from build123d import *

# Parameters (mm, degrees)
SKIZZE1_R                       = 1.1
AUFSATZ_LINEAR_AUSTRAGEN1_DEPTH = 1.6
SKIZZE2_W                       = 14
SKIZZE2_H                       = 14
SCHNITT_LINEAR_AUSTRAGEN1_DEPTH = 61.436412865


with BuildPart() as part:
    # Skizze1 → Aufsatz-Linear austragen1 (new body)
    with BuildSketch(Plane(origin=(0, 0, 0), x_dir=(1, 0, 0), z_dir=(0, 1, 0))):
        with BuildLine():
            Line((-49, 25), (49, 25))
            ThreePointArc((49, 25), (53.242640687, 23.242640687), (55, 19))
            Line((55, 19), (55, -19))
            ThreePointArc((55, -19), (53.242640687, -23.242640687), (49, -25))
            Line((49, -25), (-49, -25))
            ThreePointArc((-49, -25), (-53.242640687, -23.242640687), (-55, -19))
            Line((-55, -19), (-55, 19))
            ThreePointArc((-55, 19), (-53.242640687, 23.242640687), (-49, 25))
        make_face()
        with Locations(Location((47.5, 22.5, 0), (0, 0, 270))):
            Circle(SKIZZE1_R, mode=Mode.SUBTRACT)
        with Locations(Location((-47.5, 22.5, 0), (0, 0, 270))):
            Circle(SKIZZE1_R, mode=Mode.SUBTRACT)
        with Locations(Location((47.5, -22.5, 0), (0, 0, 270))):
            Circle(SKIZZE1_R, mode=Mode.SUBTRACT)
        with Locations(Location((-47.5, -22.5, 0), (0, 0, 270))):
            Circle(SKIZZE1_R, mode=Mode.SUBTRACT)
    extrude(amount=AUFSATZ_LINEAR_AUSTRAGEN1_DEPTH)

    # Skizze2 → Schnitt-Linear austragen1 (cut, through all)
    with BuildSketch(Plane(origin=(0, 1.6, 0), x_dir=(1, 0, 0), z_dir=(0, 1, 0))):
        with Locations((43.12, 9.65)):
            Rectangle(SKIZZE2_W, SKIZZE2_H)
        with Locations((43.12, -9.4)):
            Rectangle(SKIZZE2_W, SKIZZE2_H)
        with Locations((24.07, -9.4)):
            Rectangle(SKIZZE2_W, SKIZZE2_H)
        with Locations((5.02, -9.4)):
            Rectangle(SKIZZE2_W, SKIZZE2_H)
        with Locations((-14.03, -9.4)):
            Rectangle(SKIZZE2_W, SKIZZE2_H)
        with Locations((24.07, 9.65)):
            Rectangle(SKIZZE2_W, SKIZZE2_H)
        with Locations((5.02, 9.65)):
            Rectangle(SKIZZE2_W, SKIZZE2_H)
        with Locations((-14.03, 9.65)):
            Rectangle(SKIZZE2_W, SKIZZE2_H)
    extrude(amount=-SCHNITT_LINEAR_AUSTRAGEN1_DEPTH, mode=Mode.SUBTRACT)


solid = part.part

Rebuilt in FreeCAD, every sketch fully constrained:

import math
import FreeCAD as App
import Part
import Sketcher


def add_polygon(sketch, points):
    """Adds a closed chain of lines whose ends are joined by coincident constraints."""
    first, n = sketch.GeometryCount, len(points)
    for a, b in zip(points, points[1:] + points[:1]):
        sketch.addGeometry(Part.LineSegment(App.Vector(*a, 0), App.Vector(*b, 0)), False)
    for i in range(n):
        sketch.addConstraint(Sketcher.Constraint("Coincident", first + i, 2, first + (i + 1) % n, 1))

doc = App.newDocument("Part")
body = doc.addObject("PartDesign::Body", "Body")

# Sketch on XZ plane
sketch1 = body.newObject("Sketcher::SketchObject", "Sketch")
sketch1.AttachmentSupport = (doc.getObject("XZ_Plane"), [""])
sketch1.MapMode = "FlatFace"
sketch1.addGeometry([
    Part.LineSegment(App.Vector(49, -25, 0), App.Vector(-49, -25, 0)),  # 0
    Part.ArcOfCircle(Part.Circle(App.Vector(-49, -19, 0), App.Vector(0, 0, 1), 6), math.radians(180), math.radians(270)),  # 1
    Part.LineSegment(App.Vector(-55, -19, 0), App.Vector(-55, 19, 0)),  # 2
    Part.ArcOfCircle(Part.Circle(App.Vector(-49, 19, 0), App.Vector(0, 0, 1), 6), math.radians(90), math.radians(180)),  # 3
    Part.LineSegment(App.Vector(-49, 25, 0), App.Vector(49, 25, 0)),  # 4
    Part.ArcOfCircle(Part.Circle(App.Vector(49, 19, 0), App.Vector(0, 0, 1), 6), math.radians(0), math.radians(90)),  # 5
    Part.LineSegment(App.Vector(55, 19, 0), App.Vector(55, -19, 0)),  # 6
    Part.ArcOfCircle(Part.Circle(App.Vector(49, -19, 0), App.Vector(0, 0, 1), 6), math.radians(-90), math.radians(0)),  # 7
    Part.Circle(App.Vector(47.5, 22.5, 0), App.Vector(0, 0, 1), 1.1),  # 8
    Part.Circle(App.Vector(-47.5, 22.5, 0), App.Vector(0, 0, 1), 1.1),  # 9
    Part.Circle(App.Vector(47.5, -22.5, 0), App.Vector(0, 0, 1), 1.1),  # 10
    Part.Circle(App.Vector(-47.5, -22.5, 0), App.Vector(0, 0, 1), 1.1),  # 11
], False)
sketch1.addConstraint([
    Sketcher.Constraint("Tangent", 0, 2, 1, 2),
    Sketcher.Constraint("Tangent", 1, 1, 2, 1),
    Sketcher.Constraint("Tangent", 2, 2, 3, 2),
    Sketcher.Constraint("Tangent", 3, 1, 4, 1),
    Sketcher.Constraint("Tangent", 4, 2, 5, 2),
    Sketcher.Constraint("Tangent", 5, 1, 6, 1),
    Sketcher.Constraint("Tangent", 6, 2, 7, 2),
    Sketcher.Constraint("Tangent", 7, 1, 0, 1),
    Sketcher.Constraint("Horizontal", 0),
    Sketcher.Constraint("Vertical", 2),
    Sketcher.Constraint("Horizontal", 4),
    Sketcher.Constraint("Vertical", 6),
    Sketcher.Constraint("Equal", 1, 3),
    Sketcher.Constraint("Equal", 3, 5),
    Sketcher.Constraint("Equal", 5, 7),
    Sketcher.Constraint("Equal", 8, 9),
    Sketcher.Constraint("Equal", 9, 10),
    Sketcher.Constraint("Equal", 10, 11),
    Sketcher.Constraint("Symmetric", 1, 3, 5, 3, -1, 1),
    Sketcher.Constraint("Symmetric", 9, 3, 10, 3, -1, 1),
    Sketcher.Constraint("Symmetric", 8, 3, 11, 3, -1, 1),
    Sketcher.Constraint("Symmetric", 8, 3, 9, 3, -2),
    Sketcher.Constraint("Radius", 1, 6.0),
    Sketcher.Constraint("Diameter", 8, 2.2),
    Sketcher.Constraint("DistanceX", 0, 2, 0, 1, 98.0),
    Sketcher.Constraint("DistanceY", 2, 1, 2, 2, 38.0),
    Sketcher.Constraint("DistanceX", 9, 3, 8, 3, 95.0),
    Sketcher.Constraint("DistanceY", 10, 3, 8, 3, 45.0),
])
pad1 = body.newObject("PartDesign::Pad", "Pad")
pad1.Profile = sketch1
pad1.Length = 1.6
pad1.Reversed = True

# Sketch on XZ plane
sketch2 = body.newObject("Sketcher::SketchObject", "Sketch001")
sketch2.AttachmentSupport = (doc.getObject("XZ_Plane"), [""])
sketch2.MapMode = "FlatFace"
sketch2.AttachmentOffset = App.Placement(App.Vector(0, 0, -1.6), App.Rotation())
add_polygon(sketch2, [(36, -17), (36, -3), (50, -3), (50, -17)])  # lines 0-3
add_polygon(sketch2, [(36, 2), (36, 16), (50, 16), (50, 2)])  # lines 4-7
add_polygon(sketch2, [(17, 2), (17, 16), (31, 16), (31, 2)])  # lines 8-11
add_polygon(sketch2, [(-2, 2), (-2, 16), (12, 16), (12, 2)])  # lines 12-15
add_polygon(sketch2, [(-21, 2), (-21, 16), (-7, 16), (-7, 2)])  # lines 16-19
add_polygon(sketch2, [(17, -17), (17, -3), (31, -3), (31, -17)])  # lines 20-23
add_polygon(sketch2, [(-2, -17), (-2, -3), (12, -3), (12, -17)])  # lines 24-27
add_polygon(sketch2, [(-21, -17), (-21, -3), (-7, -3), (-7, -17)])  # lines 28-31
sketch2.addConstraint([
    Sketcher.Constraint("Vertical", 0),
    Sketcher.Constraint("Horizontal", 1),
    Sketcher.Constraint("Vertical", 2),
    Sketcher.Constraint("Horizontal", 3),
    Sketcher.Constraint("Vertical", 4),
    Sketcher.Constraint("Horizontal", 5),
    Sketcher.Constraint("Vertical", 6),
    Sketcher.Constraint("Horizontal", 7),
    Sketcher.Constraint("Vertical", 8),
    Sketcher.Constraint("Horizontal", 9),
    Sketcher.Constraint("Vertical", 10),
    Sketcher.Constraint("Horizontal", 11),
    Sketcher.Constraint("Vertical", 12),
    Sketcher.Constraint("Horizontal", 13),
    Sketcher.Constraint("Vertical", 14),
    Sketcher.Constraint("Horizontal", 15),
    Sketcher.Constraint("Vertical", 16),
    Sketcher.Constraint("Horizontal", 17),
    Sketcher.Constraint("Vertical", 18),
    Sketcher.Constraint("Horizontal", 19),
    Sketcher.Constraint("Vertical", 20),
    Sketcher.Constraint("Horizontal", 21),
    Sketcher.Constraint("Vertical", 22),
    Sketcher.Constraint("Horizontal", 23),
    Sketcher.Constraint("Vertical", 24),
    Sketcher.Constraint("Horizontal", 25),
    Sketcher.Constraint("Vertical", 26),
    Sketcher.Constraint("Horizontal", 27),
    Sketcher.Constraint("Vertical", 28),
    Sketcher.Constraint("Horizontal", 29),
    Sketcher.Constraint("Vertical", 30),
    Sketcher.Constraint("Horizontal", 31),
    Sketcher.Constraint("Horizontal", 5, 2, 8, 2),
    Sketcher.Constraint("Horizontal", 7, 2, 10, 2),
    Sketcher.Constraint("Horizontal", 9, 2, 12, 2),
    Sketcher.Constraint("Horizontal", 11, 2, 14, 2),
    Sketcher.Constraint("Horizontal", 13, 2, 16, 2),
    Sketcher.Constraint("Horizontal", 15, 2, 18, 2),
    Sketcher.Constraint("Horizontal", 1, 2, 20, 2),
    Sketcher.Constraint("Horizontal", 3, 2, 22, 2),
    Sketcher.Constraint("Horizontal", 21, 2, 24, 2),
    Sketcher.Constraint("Horizontal", 23, 2, 26, 2),
    Sketcher.Constraint("Horizontal", 25, 2, 28, 2),
    Sketcher.Constraint("Horizontal", 27, 2, 30, 2),
    Sketcher.Constraint("Vertical", 3, 2, 4, 2),
    Sketcher.Constraint("Vertical", 2, 2, 5, 2),
    Sketcher.Constraint("Vertical", 11, 2, 20, 2),
    Sketcher.Constraint("Vertical", 10, 2, 21, 2),
    Sketcher.Constraint("Vertical", 15, 2, 24, 2),
    Sketcher.Constraint("Vertical", 14, 2, 25, 2),
    Sketcher.Constraint("Vertical", 19, 2, 28, 2),
    Sketcher.Constraint("Vertical", 18, 2, 29, 2),
    Sketcher.Constraint("Equal", 7, 9),
    Sketcher.Constraint("Equal", 11, 13),
    Sketcher.Constraint("Equal", 15, 17),
    Sketcher.Constraint("Equal", 31, 0),
    Sketcher.Constraint("Equal", 2, 4),
    Sketcher.Constraint("DistanceX", 1, 1, 1, 2, 14.0),
    Sketcher.Constraint("DistanceY", -1, 1, 4, 2, 16.4),
    Sketcher.Constraint("DistanceX", 12, 2, 4, 2, 38.1),
    Sketcher.Constraint("DistanceX", 16, 2, 8, 2, 38.1),
    Sketcher.Constraint("DistanceX", -1, 1, 0, 2, 36.12),
    Sketcher.Constraint("DistanceY", 0, 2, -1, 1, 2.65),
    Sketcher.Constraint("DistanceX", -1, 1, 8, 2, 17.07),
])
pocket1 = body.newObject("PartDesign::Pocket", "Pocket")
pocket1.Profile = sketch2
pocket1.Type = "ThroughAll"
pocket1.Reversed = True

doc.recompute()
